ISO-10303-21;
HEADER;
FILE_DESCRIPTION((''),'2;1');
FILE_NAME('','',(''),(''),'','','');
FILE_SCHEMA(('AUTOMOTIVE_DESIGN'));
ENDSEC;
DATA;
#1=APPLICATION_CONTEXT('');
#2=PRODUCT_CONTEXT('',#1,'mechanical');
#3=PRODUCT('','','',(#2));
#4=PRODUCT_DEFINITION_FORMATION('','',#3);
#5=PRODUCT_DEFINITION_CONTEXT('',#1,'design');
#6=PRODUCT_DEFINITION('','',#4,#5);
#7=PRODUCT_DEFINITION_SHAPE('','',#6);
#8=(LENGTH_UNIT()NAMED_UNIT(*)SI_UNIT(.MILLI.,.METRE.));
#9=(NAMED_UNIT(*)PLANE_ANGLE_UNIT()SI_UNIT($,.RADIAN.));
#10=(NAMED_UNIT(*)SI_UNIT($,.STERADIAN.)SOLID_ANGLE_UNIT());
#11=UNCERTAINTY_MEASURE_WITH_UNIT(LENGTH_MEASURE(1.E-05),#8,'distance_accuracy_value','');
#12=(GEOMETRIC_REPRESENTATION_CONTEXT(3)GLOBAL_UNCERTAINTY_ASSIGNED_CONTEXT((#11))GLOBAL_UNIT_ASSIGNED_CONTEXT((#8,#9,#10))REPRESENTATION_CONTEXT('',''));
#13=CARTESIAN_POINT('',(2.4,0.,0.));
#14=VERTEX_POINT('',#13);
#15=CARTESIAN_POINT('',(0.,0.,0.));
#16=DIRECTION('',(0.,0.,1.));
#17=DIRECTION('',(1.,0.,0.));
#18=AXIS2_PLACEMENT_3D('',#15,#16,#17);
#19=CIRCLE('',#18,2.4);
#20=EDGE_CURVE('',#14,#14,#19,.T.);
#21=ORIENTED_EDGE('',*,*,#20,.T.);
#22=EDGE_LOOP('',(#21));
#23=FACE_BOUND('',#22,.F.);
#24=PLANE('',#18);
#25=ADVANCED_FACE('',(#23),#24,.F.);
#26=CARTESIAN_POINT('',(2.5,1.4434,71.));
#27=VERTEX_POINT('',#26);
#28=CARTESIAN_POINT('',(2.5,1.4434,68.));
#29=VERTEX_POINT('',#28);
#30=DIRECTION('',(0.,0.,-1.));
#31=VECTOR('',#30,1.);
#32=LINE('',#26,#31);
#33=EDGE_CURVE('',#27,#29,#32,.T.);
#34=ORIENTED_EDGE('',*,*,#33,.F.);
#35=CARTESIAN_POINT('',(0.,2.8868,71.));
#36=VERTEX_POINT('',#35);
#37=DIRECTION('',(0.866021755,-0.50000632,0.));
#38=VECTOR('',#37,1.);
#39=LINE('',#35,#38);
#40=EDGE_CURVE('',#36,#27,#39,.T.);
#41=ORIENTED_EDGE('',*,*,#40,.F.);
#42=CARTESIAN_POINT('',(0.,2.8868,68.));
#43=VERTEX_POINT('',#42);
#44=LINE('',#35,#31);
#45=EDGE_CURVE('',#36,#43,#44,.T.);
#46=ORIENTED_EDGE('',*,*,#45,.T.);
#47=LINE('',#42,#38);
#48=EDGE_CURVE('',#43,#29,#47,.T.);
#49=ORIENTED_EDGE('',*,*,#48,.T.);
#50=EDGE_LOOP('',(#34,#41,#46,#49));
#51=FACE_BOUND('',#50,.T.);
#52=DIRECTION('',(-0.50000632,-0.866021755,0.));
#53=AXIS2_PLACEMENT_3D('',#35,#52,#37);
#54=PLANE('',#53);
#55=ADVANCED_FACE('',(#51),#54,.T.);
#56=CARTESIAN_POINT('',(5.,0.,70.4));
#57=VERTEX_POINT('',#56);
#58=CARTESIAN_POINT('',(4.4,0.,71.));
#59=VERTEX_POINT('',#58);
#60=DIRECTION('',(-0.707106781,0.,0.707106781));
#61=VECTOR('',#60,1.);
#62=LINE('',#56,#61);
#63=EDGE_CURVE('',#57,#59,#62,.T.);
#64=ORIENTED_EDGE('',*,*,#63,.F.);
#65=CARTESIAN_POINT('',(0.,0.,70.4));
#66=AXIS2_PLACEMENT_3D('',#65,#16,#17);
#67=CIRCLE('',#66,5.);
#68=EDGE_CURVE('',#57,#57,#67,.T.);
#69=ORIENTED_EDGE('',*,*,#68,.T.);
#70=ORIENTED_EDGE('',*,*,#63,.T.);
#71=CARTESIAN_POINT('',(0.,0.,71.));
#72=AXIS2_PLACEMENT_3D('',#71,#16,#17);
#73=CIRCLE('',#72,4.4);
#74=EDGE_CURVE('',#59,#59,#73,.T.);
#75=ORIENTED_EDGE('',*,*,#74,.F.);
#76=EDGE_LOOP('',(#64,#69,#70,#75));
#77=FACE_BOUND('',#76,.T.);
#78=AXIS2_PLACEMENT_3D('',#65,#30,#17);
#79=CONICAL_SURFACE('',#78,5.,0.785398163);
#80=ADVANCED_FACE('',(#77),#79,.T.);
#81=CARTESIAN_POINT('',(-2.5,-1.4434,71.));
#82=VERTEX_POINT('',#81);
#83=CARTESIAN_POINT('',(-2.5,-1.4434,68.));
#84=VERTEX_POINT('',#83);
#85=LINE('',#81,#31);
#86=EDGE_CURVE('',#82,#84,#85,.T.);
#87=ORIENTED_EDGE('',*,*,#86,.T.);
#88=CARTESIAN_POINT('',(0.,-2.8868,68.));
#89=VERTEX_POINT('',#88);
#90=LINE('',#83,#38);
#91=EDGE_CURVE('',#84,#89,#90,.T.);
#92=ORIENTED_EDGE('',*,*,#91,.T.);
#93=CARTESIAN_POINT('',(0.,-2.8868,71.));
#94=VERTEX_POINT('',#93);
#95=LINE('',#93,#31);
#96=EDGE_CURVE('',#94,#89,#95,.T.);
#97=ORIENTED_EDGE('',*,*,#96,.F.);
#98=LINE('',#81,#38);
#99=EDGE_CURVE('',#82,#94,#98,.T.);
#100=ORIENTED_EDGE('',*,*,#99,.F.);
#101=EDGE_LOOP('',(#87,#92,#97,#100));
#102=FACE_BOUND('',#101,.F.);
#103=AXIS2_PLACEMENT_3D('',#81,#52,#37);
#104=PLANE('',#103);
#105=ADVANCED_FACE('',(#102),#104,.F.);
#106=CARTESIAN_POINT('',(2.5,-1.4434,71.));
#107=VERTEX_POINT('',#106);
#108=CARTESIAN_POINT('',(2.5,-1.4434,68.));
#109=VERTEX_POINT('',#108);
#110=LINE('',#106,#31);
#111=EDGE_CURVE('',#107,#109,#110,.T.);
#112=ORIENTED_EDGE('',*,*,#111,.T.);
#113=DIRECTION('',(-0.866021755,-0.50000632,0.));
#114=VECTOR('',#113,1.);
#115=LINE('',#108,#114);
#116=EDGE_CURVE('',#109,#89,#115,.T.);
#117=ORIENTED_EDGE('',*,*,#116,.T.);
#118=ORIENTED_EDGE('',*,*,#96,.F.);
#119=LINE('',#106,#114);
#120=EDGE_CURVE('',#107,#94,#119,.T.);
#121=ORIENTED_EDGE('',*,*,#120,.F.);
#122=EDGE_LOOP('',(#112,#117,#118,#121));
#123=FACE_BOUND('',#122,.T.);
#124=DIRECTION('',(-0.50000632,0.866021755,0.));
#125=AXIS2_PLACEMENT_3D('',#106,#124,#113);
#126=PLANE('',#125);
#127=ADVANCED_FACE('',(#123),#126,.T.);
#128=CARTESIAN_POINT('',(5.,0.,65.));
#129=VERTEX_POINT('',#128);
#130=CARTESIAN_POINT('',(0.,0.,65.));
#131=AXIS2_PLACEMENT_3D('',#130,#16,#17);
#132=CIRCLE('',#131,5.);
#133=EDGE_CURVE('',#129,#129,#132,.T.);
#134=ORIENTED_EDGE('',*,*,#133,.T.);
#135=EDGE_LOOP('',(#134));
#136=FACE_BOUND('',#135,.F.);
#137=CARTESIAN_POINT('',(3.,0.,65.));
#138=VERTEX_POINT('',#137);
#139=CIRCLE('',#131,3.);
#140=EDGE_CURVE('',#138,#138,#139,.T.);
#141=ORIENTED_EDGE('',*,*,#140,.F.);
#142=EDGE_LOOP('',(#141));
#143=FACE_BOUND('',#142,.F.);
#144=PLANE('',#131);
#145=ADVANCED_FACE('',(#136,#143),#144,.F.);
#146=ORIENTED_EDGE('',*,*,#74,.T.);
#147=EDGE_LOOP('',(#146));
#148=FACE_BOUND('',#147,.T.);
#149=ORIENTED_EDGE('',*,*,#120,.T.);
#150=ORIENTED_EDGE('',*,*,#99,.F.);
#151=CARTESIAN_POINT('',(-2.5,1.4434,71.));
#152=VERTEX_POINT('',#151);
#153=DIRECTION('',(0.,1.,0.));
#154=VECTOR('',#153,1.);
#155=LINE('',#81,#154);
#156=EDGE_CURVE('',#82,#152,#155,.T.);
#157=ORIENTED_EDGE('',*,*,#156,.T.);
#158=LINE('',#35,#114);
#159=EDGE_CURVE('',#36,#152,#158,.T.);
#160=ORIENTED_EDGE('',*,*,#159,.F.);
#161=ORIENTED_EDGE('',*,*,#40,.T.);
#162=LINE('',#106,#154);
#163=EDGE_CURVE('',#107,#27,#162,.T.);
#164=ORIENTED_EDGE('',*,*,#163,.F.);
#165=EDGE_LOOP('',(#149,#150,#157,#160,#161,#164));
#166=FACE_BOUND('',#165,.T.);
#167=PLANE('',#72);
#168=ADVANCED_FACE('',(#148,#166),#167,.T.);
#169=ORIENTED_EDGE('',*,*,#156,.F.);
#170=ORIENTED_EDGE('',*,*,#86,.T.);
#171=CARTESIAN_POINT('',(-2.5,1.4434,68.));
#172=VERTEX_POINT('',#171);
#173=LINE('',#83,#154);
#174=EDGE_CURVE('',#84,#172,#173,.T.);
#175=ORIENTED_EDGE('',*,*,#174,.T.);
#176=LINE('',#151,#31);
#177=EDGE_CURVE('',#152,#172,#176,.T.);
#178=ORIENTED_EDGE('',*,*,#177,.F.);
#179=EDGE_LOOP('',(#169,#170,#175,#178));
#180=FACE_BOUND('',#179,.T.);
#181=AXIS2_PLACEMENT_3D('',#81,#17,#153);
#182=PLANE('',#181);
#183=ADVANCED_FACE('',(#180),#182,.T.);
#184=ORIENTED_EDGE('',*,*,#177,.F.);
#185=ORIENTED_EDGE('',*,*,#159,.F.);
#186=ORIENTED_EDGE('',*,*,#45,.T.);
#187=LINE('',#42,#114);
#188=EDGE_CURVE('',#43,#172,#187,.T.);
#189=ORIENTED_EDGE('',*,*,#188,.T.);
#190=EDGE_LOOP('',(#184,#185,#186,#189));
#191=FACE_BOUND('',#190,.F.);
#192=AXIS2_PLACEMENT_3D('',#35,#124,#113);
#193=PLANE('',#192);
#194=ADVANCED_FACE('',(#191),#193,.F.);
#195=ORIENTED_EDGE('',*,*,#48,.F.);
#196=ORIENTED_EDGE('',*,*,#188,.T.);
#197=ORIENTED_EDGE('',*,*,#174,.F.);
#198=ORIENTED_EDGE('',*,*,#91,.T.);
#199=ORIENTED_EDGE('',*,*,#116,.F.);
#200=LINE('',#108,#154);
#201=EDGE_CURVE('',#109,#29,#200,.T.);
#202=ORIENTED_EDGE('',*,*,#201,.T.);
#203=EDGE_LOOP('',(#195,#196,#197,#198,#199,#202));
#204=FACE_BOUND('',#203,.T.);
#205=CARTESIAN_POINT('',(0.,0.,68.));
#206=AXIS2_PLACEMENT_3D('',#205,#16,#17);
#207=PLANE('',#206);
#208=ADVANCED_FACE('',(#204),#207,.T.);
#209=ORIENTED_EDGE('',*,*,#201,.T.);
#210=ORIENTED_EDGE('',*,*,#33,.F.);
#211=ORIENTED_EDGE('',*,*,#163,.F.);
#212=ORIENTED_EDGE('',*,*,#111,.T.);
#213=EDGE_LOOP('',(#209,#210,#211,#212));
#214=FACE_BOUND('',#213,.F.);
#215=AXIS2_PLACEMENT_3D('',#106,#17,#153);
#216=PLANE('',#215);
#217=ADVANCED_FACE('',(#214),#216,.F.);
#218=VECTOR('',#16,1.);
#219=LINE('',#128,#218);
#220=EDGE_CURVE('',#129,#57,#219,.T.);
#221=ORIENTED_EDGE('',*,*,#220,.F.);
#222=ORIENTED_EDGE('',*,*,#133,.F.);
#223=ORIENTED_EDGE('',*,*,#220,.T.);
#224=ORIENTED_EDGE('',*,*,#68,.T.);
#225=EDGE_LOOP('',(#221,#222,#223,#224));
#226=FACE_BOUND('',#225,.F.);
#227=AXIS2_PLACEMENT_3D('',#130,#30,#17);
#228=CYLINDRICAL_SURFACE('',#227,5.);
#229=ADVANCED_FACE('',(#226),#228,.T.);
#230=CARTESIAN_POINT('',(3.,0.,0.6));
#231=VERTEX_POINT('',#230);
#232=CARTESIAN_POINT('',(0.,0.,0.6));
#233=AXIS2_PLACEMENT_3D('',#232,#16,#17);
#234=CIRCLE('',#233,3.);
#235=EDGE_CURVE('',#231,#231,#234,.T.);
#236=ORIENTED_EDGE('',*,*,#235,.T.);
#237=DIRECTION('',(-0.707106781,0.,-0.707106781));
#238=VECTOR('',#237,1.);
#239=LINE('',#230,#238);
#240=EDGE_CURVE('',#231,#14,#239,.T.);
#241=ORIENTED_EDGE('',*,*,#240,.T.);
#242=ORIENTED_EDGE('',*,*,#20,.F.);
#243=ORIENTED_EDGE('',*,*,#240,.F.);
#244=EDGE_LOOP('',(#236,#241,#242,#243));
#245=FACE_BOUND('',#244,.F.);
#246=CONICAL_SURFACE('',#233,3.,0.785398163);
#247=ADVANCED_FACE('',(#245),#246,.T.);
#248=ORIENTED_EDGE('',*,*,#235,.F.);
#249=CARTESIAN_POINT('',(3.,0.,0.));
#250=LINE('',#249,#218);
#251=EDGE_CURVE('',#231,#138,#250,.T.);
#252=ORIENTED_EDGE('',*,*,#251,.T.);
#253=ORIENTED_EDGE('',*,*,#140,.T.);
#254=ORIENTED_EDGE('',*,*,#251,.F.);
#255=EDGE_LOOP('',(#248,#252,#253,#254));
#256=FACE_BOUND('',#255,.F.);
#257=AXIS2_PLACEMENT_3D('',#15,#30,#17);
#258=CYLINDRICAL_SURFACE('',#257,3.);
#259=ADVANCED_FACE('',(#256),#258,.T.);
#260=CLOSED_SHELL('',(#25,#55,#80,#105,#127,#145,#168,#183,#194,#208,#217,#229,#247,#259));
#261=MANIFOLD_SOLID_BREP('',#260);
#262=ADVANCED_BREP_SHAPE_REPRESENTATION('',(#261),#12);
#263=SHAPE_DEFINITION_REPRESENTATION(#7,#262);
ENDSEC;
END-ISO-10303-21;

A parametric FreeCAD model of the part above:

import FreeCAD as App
import Part
import Sketcher

V = App.Vector
Q = App.Units.Quantity


def edges_at(feature, points):
    """Names of the edges that pass closest to the given points."""
    edges = feature.Shape.Edges
    near = lambda p: min(range(len(edges)), key=lambda i: edges[i].distToShape(Part.Vertex(*p))[0])
    return sorted({f"Edge{near(p) + 1}" for p in points})


def add_polygon(sketch, points):
    """Adds a closed chain of lines whose ends are joined by coincident constraints."""
    first, n = sketch.GeometryCount, len(points)
    for a, b in zip(points, points[1:] + points[:1]):
        sketch.addGeometry(Part.LineSegment(App.Vector(*a, 0), App.Vector(*b, 0)), False)
    for i in range(n):
        sketch.addConstraint(Sketcher.Constraint("Coincident", first + i, 2, first + (i + 1) % n, 1))

doc = App.newDocument("Part")
body = doc.addObject("PartDesign::Body", "Body")

# Sketch on XY plane
sketch1 = body.newObject("Sketcher::SketchObject", "Sketch")
sketch1.AttachmentSupport = (doc.getObject("XY_Plane"), [""])
sketch1.MapMode = "FlatFace"
sketch1.addGeometry(Part.Circle(V(0, 0, 0), V(0, 0, 1), 3), False)
sketch1.addConstraint(Sketcher.Constraint("Coincident", 0, 3, -1, 1))
sketch1.addConstraint(Sketcher.Constraint("Diameter", 0, Q("6 mm")))
pad1 = body.newObject("PartDesign::Pad", "Pad")
pad1.Profile = sketch1
pad1.Length = 65

# Sketch on XY plane
sketch2 = body.newObject("Sketcher::SketchObject", "Sketch001")
sketch2.AttachmentSupport = (doc.getObject("XY_Plane"), [""])
sketch2.MapMode = "FlatFace"
sketch2.AttachmentOffset = App.Placement(V(0, 0, 65), App.Rotation())
sketch2.addGeometry(Part.Circle(V(0, 0, 0), V(0, 0, 1), 5), False)
sketch2.addConstraint(Sketcher.Constraint("Coincident", 0, 3, -1, 1))
sketch2.addConstraint(Sketcher.Constraint("Diameter", 0, Q("10 mm")))
pad2 = body.newObject("PartDesign::Pad", "Pad001")
pad2.Profile = sketch2
pad2.Length = 6

# Sketch on XY plane
sketch3 = body.newObject("Sketcher::SketchObject", "Sketch002")
sketch3.AttachmentSupport = (doc.getObject("XY_Plane"), [""])
sketch3.MapMode = "FlatFace"
sketch3.AttachmentOffset = App.Placement(V(0, 0, 71), App.Rotation())
add_polygon(sketch3, [(2.5, 1.4), (0, 2.9), (-2.5, 1.4), (-2.5, -1.4), (0, -2.9), (2.5, -1.4)])  # lines 0-5
sketch3.addConstraint(Sketcher.Constraint("Vertical", 2))
sketch3.addConstraint(Sketcher.Constraint("Vertical", 5))
sketch3.addConstraint(Sketcher.Constraint("Symmetric", 0, 2, 3, 2, -1, 1))
sketch3.addConstraint(Sketcher.Constraint("Symmetric", 1, 2, 4, 2, -1, 1))
sketch3.addConstraint(Sketcher.Constraint("PointOnObject", 0, 2, -2))
sketch3.addConstraint(Sketcher.Constraint("Parallel", 0, 3))
sketch3.addConstraint(Sketcher.Constraint("Horizontal", 2, 2, 4, 2))
sketch3.addConstraint(Sketcher.Constraint("DistanceX", 2, 2, 4, 2, Q("5 mm")))
sketch3.addConstraint(Sketcher.Constraint("Angle", 0, Q("149.9996 deg")))
sketch3.addConstraint(Sketcher.Constraint("DistanceY", 2, 2, 2, 1, Q("2.8868 mm")))
pocket1 = body.newObject("PartDesign::Pocket", "Pocket")
pocket1.Profile = sketch3
pocket1.Length = 3
doc.recompute()

chamfer = body.newObject("PartDesign::Chamfer", "Chamfer")
chamfer.Base = (pocket1, edges_at(pocket1, [(-5, 0, 71), (-3, 0, 0)]))
chamfer.Size = 0.6

doc.recompute()
